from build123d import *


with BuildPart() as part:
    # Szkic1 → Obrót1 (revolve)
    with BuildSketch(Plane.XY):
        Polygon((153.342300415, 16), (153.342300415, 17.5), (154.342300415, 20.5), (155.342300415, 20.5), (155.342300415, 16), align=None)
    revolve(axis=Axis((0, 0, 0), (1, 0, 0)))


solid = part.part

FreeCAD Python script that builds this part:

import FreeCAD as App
import Part
import Sketcher

V = App.Vector
Q = App.Units.Quantity


def add_polygon(sketch, points):
    """Adds a closed chain of lines whose ends are joined by coincident constraints."""
    first, n = sketch.GeometryCount, len(points)
    for a, b in zip(points, points[1:] + points[:1]):
        sketch.addGeometry(Part.LineSegment(App.Vector(*a, 0), App.Vector(*b, 0)), False)
    for i in range(n):
        sketch.addConstraint(Sketcher.Constraint("Coincident", first + i, 2, first + (i + 1) % n, 1))

doc = App.newDocument("Part")
body = doc.addObject("PartDesign::Body", "Body")

sketch1 = body.newObject("Sketcher::SketchObject", "Sketch")
sketch1.AttachmentSupport = (doc.getObject("XY_Plane"), [""])
sketch1.MapMode = "FlatFace"
add_polygon(sketch1, [(153.3, 17.5), (153.3, 16), (155.3, 16), (155.3, 20.5), (154.3, 20.5)])
sketch1.addConstraint(Sketcher.Constraint("Vertical", 0))
sketch1.addConstraint(Sketcher.Constraint("Horizontal", 1))
sketch1.addConstraint(Sketcher.Constraint("Vertical", 2))
sketch1.addConstraint(Sketcher.Constraint("Horizontal", 3))
sketch1.addConstraint(Sketcher.Constraint("DistanceX", 1, 1, 1, 2, Q("2 mm")))
sketch1.addConstraint(Sketcher.Constraint("DistanceX", 3, 2, 3, 1, Q("1 mm")))
sketch1.addConstraint(Sketcher.Constraint("DistanceY", 0, 2, 0, 1, Q("1.5 mm")))
sketch1.addConstraint(Sketcher.Constraint("DistanceY", 2, 1, 2, 2, Q("4.5 mm")))
sketch1.addConstraint(Sketcher.Constraint("DistanceY", -1, 1, 0, 2, Q("16 mm")))
sketch1.addConstraint(Sketcher.Constraint("DistanceX", -1, 1, 0, 2, Q("153.3423 mm")))
revolution = body.newObject("PartDesign::Revolution", "Revolution")
revolution.Profile = sketch1
revolution.ReferenceAxis = (sketch1, ["H_Axis"])
revolution.Angle = 360

doc.recompute()
